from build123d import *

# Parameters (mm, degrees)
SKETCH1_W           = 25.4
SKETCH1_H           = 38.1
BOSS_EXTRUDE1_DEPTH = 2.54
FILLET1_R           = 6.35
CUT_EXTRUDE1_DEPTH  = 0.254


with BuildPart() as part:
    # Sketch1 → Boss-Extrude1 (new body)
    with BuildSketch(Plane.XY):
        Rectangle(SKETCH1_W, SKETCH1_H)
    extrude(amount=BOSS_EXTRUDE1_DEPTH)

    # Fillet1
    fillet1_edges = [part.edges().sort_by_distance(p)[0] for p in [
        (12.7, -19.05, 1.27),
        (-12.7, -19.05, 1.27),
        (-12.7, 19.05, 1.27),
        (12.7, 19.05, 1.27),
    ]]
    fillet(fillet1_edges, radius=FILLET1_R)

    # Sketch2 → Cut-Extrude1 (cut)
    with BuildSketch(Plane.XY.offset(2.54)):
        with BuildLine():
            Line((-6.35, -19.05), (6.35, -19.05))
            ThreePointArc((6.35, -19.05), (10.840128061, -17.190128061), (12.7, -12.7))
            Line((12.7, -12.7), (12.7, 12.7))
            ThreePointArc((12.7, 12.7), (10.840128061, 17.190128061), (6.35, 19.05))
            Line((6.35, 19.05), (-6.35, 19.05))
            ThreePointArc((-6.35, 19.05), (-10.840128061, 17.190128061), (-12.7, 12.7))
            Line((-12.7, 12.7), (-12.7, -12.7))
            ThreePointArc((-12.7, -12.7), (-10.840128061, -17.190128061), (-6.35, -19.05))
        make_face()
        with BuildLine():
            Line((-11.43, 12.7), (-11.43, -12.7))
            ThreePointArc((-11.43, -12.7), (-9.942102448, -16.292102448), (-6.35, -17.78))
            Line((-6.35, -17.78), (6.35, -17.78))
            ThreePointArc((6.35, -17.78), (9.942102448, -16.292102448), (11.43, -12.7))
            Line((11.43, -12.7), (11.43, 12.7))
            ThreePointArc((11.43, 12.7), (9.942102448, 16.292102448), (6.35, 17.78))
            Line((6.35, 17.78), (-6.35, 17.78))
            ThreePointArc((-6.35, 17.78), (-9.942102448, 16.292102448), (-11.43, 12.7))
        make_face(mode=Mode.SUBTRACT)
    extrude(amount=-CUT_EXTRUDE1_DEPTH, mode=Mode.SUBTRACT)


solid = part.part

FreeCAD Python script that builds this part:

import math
import FreeCAD as App
import Part
import Sketcher
from FreeCAD import Vector
Q = App.Units.Quantity


def edges_at(feature, points):
    """Names of the edges that pass closest to the given points."""
    edges = feature.Shape.Edges
    near = lambda p: min(range(len(edges)), key=lambda i: edges[i].distToShape(Part.Vertex(*p))[0])
    return sorted({f"Edge{near(p) + 1}" for p in points})


def add_polygon(sketch, points):
    """Adds a closed chain of lines whose ends are joined by coincident constraints."""
    first, n = sketch.GeometryCount, len(points)
    for a, b in zip(points, points[1:] + points[:1]):
        sketch.addGeometry(Part.LineSegment(App.Vector(*a, 0), App.Vector(*b, 0)), False)
    for i in range(n):
        sketch.addConstraint(Sketcher.Constraint("Coincident", first + i, 2, first + (i + 1) % n, 1))

doc = App.newDocument("Part")
body = doc.addObject("PartDesign::Body", "Body")

sketch1 = body.newObject("Sketcher::SketchObject", "Sketch")
sketch1.AttachmentSupport = (doc.getObject("XY_Plane"), [""])
sketch1.MapMode = "FlatFace"
add_polygon(sketch1, [(-12.7, 19.05), (-12.7, -19.05), (12.7, -19.05), (12.7, 19.05)])
sketch1.addConstraint([
    Sketcher.Constraint("Vertical", 0),
    Sketcher.Constraint("Horizontal", 1),
    Sketcher.Constraint("Vertical", 2),
    Sketcher.Constraint("Horizontal", 3),
    Sketcher.Constraint("Symmetric", 0, 2, 2, 2, -1, 1),
    Sketcher.Constraint("DistanceX", 1, 1, 1, 2, Q("1 in")),
    Sketcher.Constraint("DistanceY", 0, 2, 0, 1, Q("1.5 in")),
])
pad1 = body.newObject("PartDesign::Pad", "Pad")
pad1.Profile = sketch1
pad1.Length = Q("0.1 in")
doc.recompute()

fillet = body.newObject("PartDesign::Fillet", "Fillet")
fillet.Base = (pad1, edges_at(pad1, [
    (12.7, -19.05, 1.27),
    (-12.7, -19.05, 1.27),
    (-12.7, 19.05, 1.27),
    (12.7, 19.05, 1.27),
]))
fillet.Radius = Q("0.25 in")

sketch2 = body.newObject("Sketcher::SketchObject", "Sketch001")
sketch2.AttachmentSupport = (doc.getObject("XY_Plane"), [""])
sketch2.MapMode = "FlatFace"
sketch2.AttachmentOffset = App.Placement(Vector(0, 0, 0.1 * 25.4), App.Rotation())
sketch2.addGeometry([
    Part.LineSegment(Vector(-6.35, -19.05, 0), Vector(6.35, -19.05, 0)),
    Part.ArcOfCircle(Part.Circle(Vector(6.35, -12.7, 0), Vector(0, 0, 1), 6.35), math.radians(-90), math.radians(0)),
    Part.LineSegment(Vector(12.7, -12.7, 0), Vector(12.7, 12.7, 0)),
    Part.ArcOfCircle(Part.Circle(Vector(6.35, 12.7, 0), Vector(0, 0, 1), 6.35), math.radians(0), math.radians(90)),
    Part.LineSegment(Vector(6.35, 19.05, 0), Vector(-6.35, 19.05, 0)),
    Part.ArcOfCircle(Part.Circle(Vector(-6.35, 12.7, 0), Vector(0, 0, 1), 6.35), math.radians(90), math.radians(180)),
    Part.LineSegment(Vector(-12.7, 12.7, 0), Vector(-12.7, -12.7, 0)),
    Part.ArcOfCircle(Part.Circle(Vector(-6.35, -12.7, 0), Vector(0, 0, 1), 6.35), math.radians(180), math.radians(270)),
    Part.LineSegment(Vector(-11.43, -12.7, 0), Vector(-11.43, 12.7, 0)),
    Part.ArcOfCircle(Part.Circle(Vector(-6.35, 12.7, 0), Vector(0, 0, 1), 5.08), math.radians(90), math.radians(180)),
    Part.LineSegment(Vector(-6.35, 17.78, 0), Vector(6.35, 17.78, 0)),
    Part.ArcOfCircle(Part.Circle(Vector(6.35, 12.7, 0), Vector(0, 0, 1), 5.08), math.radians(0), math.radians(90)),
    Part.LineSegment(Vector(11.43, 12.7, 0), Vector(11.43, -12.7, 0)),
    Part.ArcOfCircle(Part.Circle(Vector(6.35, -12.7, 0), Vector(0, 0, 1), 5.08), math.radians(-90), math.radians(0)),
    Part.LineSegment(Vector(6.35, -17.78, 0), Vector(-6.35, -17.78, 0)),
    Part.ArcOfCircle(Part.Circle(Vector(-6.35, -12.7, 0), Vector(0, 0, 1), 5.08), math.radians(-180), math.radians(-90)),
], False)
sketch2.addConstraint([
    Sketcher.Constraint("Tangent", 0, 2, 1, 1),
    Sketcher.Constraint("Tangent", 1, 2, 2, 1),
    Sketcher.Constraint("Tangent", 2, 2, 3, 1),
    Sketcher.Constraint("Tangent", 3, 2, 4, 1),
    Sketcher.Constraint("Tangent", 4, 2, 5, 1),
    Sketcher.Constraint("Tangent", 5, 2, 6, 1),
    Sketcher.Constraint("Tangent", 6, 2, 7, 1),
    Sketcher.Constraint("Tangent", 7, 2, 0, 1),
    Sketcher.Constraint("Tangent", 8, 2, 9, 2),
    Sketcher.Constraint("Tangent", 9, 1, 10, 1),
    Sketcher.Constraint("Tangent", 10, 2, 11, 2),
    Sketcher.Constraint("Tangent", 11, 1, 12, 1),
    Sketcher.Constraint("Tangent", 12, 2, 13, 2),
    Sketcher.Constraint("Tangent", 13, 1, 14, 1),
    Sketcher.Constraint("Tangent", 14, 2, 15, 2),
    Sketcher.Constraint("Tangent", 15, 1, 8, 1),
    Sketcher.Constraint("Horizontal", 0),
    Sketcher.Constraint("Vertical", 2),
    Sketcher.Constraint("Horizontal", 4),
    Sketcher.Constraint("Vertical", 6),
    Sketcher.Constraint("Vertical", 8),
    Sketcher.Constraint("Horizontal", 10),
    Sketcher.Constraint("Vertical", 12),
    Sketcher.Constraint("Horizontal", 14),
    Sketcher.Constraint("Coincident", 9, 3, 5, 3),
    Sketcher.Constraint("Coincident", 11, 3, 3, 3),
    Sketcher.Constraint("Coincident", 13, 3, 1, 3),
    Sketcher.Constraint("Equal", 1, 3),
    Sketcher.Constraint("Equal", 3, 5),
    Sketcher.Constraint("Equal", 5, 7),
    Sketcher.Constraint("Equal", 13, 15),
    Sketcher.Constraint("Symmetric", 1, 3, 5, 3, -1, 1),
    Sketcher.Constraint("Radius", 9, Q("0.2 in")),
    Sketcher.Constraint("DistanceY", 2, 1, 2, 2, Q("1 in")),
    Sketcher.Constraint("Radius", 1, Q("0.25 in")),
    Sketcher.Constraint("DistanceX", 0, 1, 0, 2, Q("0.5 in")),
])
pocket1 = body.newObject("PartDesign::Pocket", "Pocket")
pocket1.Profile = sketch2
pocket1.Length = Q("0.01 in")

doc.recompute()
